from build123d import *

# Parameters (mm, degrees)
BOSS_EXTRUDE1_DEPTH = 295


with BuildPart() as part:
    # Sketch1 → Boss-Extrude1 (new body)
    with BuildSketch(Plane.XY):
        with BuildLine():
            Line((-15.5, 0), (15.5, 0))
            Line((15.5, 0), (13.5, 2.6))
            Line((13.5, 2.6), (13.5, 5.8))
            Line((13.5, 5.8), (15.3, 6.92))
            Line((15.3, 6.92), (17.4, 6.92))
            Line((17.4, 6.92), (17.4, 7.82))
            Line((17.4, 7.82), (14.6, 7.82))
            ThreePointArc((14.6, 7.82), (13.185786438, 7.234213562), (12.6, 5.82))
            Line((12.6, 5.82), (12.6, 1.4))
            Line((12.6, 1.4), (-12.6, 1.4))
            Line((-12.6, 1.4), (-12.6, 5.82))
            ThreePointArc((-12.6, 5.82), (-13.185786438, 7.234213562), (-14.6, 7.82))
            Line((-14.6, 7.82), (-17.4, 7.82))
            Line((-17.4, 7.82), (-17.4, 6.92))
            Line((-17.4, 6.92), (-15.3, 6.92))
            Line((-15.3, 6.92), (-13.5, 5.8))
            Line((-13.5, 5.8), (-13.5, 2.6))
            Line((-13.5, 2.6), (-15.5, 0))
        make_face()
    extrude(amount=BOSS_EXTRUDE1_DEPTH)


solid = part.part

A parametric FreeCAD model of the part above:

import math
import FreeCAD as App
import Part
import Sketcher

V = App.Vector

doc = App.newDocument("Part")
body = doc.addObject("PartDesign::Body", "Body")

# Sketch on XY plane
sketch1 = body.newObject("Sketcher::SketchObject", "Sketch")
sketch1.AttachmentSupport = (doc.getObject("XY_Plane"), [""])
sketch1.MapMode = "FlatFace"
sketch1.addGeometry(Part.LineSegment(V(-15.5, 0, 0), V(15.5, 0, 0)), False)
sketch1.addGeometry(Part.LineSegment(V(15.5, 0, 0), V(13.5, 2.6, 0)), False)
sketch1.addGeometry(Part.LineSegment(V(13.5, 2.6, 0), V(13.5, 5.8, 0)), False)
sketch1.addGeometry(Part.LineSegment(V(13.5, 5.8, 0), V(15.3, 6.9, 0)), False)
sketch1.addGeometry(Part.LineSegment(V(15.3, 6.9, 0), V(17.4, 6.9, 0)), False)
sketch1.addGeometry(Part.LineSegment(V(17.4, 6.9, 0), V(17.4, 7.8, 0)), False)
sketch1.addGeometry(Part.LineSegment(V(17.4, 7.8, 0), V(14.6, 7.8, 0)), False)
sketch1.addGeometry(Part.ArcOfCircle(Part.Circle(V(14.6, 5.8, 0), V(0, 0, 1), 2), math.radians(90), math.radians(180)), False)
sketch1.addGeometry(Part.LineSegment(V(12.6, 5.8, 0), V(12.6, 1.4, 0)), False)
sketch1.addGeometry(Part.LineSegment(V(12.6, 1.4, 0), V(-12.6, 1.4, 0)), False)
sketch1.addGeometry(Part.LineSegment(V(-12.6, 1.4, 0), V(-12.6, 5.8, 0)), False)
sketch1.addGeometry(Part.ArcOfCircle(Part.Circle(V(-14.6, 5.8, 0), V(0, 0, 1), 2), math.radians(0), math.radians(90)), False)
sketch1.addGeometry(Part.LineSegment(V(-14.6, 7.8, 0), V(-17.4, 7.8, 0)), False)
sketch1.addGeometry(Part.LineSegment(V(-17.4, 7.8, 0), V(-17.4, 6.9, 0)), False)
sketch1.addGeometry(Part.LineSegment(V(-17.4, 6.9, 0), V(-15.3, 6.9, 0)), False)
sketch1.addGeometry(Part.LineSegment(V(-15.3, 6.9, 0), V(-13.5, 5.8, 0)), False)
sketch1.addGeometry(Part.LineSegment(V(-13.5, 5.8, 0), V(-13.5, 2.6, 0)), False)
sketch1.addGeometry(Part.LineSegment(V(-13.5, 2.6, 0), V(-15.5, 0, 0)), False)
sketch1.addConstraint(Sketcher.Constraint("Coincident", 0, 2, 1, 1))
sketch1.addConstraint(Sketcher.Constraint("Coincident", 1, 2, 2, 1))
sketch1.addConstraint(Sketcher.Constraint("Coincident", 2, 2, 3, 1))
sketch1.addConstraint(Sketcher.Constraint("Coincident", 3, 2, 4, 1))
sketch1.addConstraint(Sketcher.Constraint("Coincident", 4, 2, 5, 1))
sketch1.addConstraint(Sketcher.Constraint("Coincident", 5, 2, 6, 1))
sketch1.addConstraint(Sketcher.Constraint("Tangent", 6, 2, 7, 1))
sketch1.addConstraint(Sketcher.Constraint("Tangent", 7, 2, 8, 1))
sketch1.addConstraint(Sketcher.Constraint("Coincident", 8, 2, 9, 1))
sketch1.addConstraint(Sketcher.Constraint("Coincident", 9, 2, 10, 1))
sketch1.addConstraint(Sketcher.Constraint("Tangent", 10, 2, 11, 1))
sketch1.addConstraint(Sketcher.Constraint("Tangent", 11, 2, 12, 1))
sketch1.addConstraint(Sketcher.Constraint("Coincident", 12, 2, 13, 1))
sketch1.addConstraint(Sketcher.Constraint("Coincident", 13, 2, 14, 1))
sketch1.addConstraint(Sketcher.Constraint("Coincident", 14, 2, 15, 1))
sketch1.addConstraint(Sketcher.Constraint("Coincident", 15, 2, 16, 1))
sketch1.addConstraint(Sketcher.Constraint("Coincident", 16, 2, 17, 1))
sketch1.addConstraint(Sketcher.Constraint("Coincident", 17, 2, 0, 1))
sketch1.addConstraint(Sketcher.Constraint("Horizontal", 0))
sketch1.addConstraint(Sketcher.Constraint("Vertical", 2))
sketch1.addConstraint(Sketcher.Constraint("Horizontal", 4))
sketch1.addConstraint(Sketcher.Constraint("Vertical", 5))
sketch1.addConstraint(Sketcher.Constraint("Horizontal", 6))
sketch1.addConstraint(Sketcher.Constraint("Vertical", 8))
sketch1.addConstraint(Sketcher.Constraint("Horizontal", 9))
sketch1.addConstraint(Sketcher.Constraint("Vertical", 10))
sketch1.addConstraint(Sketcher.Constraint("Horizontal", 12))
sketch1.addConstraint(Sketcher.Constraint("Vertical", 13))
sketch1.addConstraint(Sketcher.Constraint("Horizontal", 14))
sketch1.addConstraint(Sketcher.Constraint("Vertical", 16))
sketch1.addConstraint(Sketcher.Constraint("Equal", 7, 11))
sketch1.addConstraint(Sketcher.Constraint("Symmetric", 0, 2, 17, 2, -1, 1))
sketch1.addConstraint(Sketcher.Constraint("Symmetric", 7, 3, 11, 3, -2))
sketch1.addConstraint(Sketcher.Constraint("Symmetric", 4, 2, 13, 2, -2))
sketch1.addConstraint(Sketcher.Constraint("Symmetric", 2, 2, 15, 2, -2))
sketch1.addConstraint(Sketcher.Constraint("Horizontal", 1, 2, 16, 2))
sketch1.addConstraint(Sketcher.Constraint("Equal", 4, 14))
sketch1.addConstraint(Sketcher.Constraint("Radius", 7, 2.0))
sketch1.addConstraint(Sketcher.Constraint("DistanceX", 0, 1, 0, 2, 31.0))
sketch1.addConstraint(Sketcher.Constraint("DistanceX", 4, 1, 4, 2, 2.1))
sketch1.addConstraint(Sketcher.Constraint("DistanceX", 6, 2, 6, 1, 2.8))
sketch1.addConstraint(Sketcher.Constraint("DistanceX", 9, 2, 9, 1, 25.2))
sketch1.addConstraint(Sketcher.Constraint("DistanceY", 2, 1, 2, 2, 3.2))
sketch1.addConstraint(Sketcher.Constraint("DistanceY", 5, 1, 5, 2, 0.9))
sketch1.addConstraint(Sketcher.Constraint("DistanceX", 1, 2, 0, 2, 2.0))
sketch1.addConstraint(Sketcher.Constraint("DistanceY", 8, 2, 8, 1, 4.42))
sketch1.addConstraint(Sketcher.Constraint("DistanceY", -1, 1, 1, 2, 2.6))
sketch1.addConstraint(Sketcher.Constraint("DistanceY", -1, 1, 8, 2, 1.4))
pad1 = body.newObject("PartDesign::Pad", "Pad")
pad1.Profile = sketch1
pad1.Length = 295

doc.recompute()
